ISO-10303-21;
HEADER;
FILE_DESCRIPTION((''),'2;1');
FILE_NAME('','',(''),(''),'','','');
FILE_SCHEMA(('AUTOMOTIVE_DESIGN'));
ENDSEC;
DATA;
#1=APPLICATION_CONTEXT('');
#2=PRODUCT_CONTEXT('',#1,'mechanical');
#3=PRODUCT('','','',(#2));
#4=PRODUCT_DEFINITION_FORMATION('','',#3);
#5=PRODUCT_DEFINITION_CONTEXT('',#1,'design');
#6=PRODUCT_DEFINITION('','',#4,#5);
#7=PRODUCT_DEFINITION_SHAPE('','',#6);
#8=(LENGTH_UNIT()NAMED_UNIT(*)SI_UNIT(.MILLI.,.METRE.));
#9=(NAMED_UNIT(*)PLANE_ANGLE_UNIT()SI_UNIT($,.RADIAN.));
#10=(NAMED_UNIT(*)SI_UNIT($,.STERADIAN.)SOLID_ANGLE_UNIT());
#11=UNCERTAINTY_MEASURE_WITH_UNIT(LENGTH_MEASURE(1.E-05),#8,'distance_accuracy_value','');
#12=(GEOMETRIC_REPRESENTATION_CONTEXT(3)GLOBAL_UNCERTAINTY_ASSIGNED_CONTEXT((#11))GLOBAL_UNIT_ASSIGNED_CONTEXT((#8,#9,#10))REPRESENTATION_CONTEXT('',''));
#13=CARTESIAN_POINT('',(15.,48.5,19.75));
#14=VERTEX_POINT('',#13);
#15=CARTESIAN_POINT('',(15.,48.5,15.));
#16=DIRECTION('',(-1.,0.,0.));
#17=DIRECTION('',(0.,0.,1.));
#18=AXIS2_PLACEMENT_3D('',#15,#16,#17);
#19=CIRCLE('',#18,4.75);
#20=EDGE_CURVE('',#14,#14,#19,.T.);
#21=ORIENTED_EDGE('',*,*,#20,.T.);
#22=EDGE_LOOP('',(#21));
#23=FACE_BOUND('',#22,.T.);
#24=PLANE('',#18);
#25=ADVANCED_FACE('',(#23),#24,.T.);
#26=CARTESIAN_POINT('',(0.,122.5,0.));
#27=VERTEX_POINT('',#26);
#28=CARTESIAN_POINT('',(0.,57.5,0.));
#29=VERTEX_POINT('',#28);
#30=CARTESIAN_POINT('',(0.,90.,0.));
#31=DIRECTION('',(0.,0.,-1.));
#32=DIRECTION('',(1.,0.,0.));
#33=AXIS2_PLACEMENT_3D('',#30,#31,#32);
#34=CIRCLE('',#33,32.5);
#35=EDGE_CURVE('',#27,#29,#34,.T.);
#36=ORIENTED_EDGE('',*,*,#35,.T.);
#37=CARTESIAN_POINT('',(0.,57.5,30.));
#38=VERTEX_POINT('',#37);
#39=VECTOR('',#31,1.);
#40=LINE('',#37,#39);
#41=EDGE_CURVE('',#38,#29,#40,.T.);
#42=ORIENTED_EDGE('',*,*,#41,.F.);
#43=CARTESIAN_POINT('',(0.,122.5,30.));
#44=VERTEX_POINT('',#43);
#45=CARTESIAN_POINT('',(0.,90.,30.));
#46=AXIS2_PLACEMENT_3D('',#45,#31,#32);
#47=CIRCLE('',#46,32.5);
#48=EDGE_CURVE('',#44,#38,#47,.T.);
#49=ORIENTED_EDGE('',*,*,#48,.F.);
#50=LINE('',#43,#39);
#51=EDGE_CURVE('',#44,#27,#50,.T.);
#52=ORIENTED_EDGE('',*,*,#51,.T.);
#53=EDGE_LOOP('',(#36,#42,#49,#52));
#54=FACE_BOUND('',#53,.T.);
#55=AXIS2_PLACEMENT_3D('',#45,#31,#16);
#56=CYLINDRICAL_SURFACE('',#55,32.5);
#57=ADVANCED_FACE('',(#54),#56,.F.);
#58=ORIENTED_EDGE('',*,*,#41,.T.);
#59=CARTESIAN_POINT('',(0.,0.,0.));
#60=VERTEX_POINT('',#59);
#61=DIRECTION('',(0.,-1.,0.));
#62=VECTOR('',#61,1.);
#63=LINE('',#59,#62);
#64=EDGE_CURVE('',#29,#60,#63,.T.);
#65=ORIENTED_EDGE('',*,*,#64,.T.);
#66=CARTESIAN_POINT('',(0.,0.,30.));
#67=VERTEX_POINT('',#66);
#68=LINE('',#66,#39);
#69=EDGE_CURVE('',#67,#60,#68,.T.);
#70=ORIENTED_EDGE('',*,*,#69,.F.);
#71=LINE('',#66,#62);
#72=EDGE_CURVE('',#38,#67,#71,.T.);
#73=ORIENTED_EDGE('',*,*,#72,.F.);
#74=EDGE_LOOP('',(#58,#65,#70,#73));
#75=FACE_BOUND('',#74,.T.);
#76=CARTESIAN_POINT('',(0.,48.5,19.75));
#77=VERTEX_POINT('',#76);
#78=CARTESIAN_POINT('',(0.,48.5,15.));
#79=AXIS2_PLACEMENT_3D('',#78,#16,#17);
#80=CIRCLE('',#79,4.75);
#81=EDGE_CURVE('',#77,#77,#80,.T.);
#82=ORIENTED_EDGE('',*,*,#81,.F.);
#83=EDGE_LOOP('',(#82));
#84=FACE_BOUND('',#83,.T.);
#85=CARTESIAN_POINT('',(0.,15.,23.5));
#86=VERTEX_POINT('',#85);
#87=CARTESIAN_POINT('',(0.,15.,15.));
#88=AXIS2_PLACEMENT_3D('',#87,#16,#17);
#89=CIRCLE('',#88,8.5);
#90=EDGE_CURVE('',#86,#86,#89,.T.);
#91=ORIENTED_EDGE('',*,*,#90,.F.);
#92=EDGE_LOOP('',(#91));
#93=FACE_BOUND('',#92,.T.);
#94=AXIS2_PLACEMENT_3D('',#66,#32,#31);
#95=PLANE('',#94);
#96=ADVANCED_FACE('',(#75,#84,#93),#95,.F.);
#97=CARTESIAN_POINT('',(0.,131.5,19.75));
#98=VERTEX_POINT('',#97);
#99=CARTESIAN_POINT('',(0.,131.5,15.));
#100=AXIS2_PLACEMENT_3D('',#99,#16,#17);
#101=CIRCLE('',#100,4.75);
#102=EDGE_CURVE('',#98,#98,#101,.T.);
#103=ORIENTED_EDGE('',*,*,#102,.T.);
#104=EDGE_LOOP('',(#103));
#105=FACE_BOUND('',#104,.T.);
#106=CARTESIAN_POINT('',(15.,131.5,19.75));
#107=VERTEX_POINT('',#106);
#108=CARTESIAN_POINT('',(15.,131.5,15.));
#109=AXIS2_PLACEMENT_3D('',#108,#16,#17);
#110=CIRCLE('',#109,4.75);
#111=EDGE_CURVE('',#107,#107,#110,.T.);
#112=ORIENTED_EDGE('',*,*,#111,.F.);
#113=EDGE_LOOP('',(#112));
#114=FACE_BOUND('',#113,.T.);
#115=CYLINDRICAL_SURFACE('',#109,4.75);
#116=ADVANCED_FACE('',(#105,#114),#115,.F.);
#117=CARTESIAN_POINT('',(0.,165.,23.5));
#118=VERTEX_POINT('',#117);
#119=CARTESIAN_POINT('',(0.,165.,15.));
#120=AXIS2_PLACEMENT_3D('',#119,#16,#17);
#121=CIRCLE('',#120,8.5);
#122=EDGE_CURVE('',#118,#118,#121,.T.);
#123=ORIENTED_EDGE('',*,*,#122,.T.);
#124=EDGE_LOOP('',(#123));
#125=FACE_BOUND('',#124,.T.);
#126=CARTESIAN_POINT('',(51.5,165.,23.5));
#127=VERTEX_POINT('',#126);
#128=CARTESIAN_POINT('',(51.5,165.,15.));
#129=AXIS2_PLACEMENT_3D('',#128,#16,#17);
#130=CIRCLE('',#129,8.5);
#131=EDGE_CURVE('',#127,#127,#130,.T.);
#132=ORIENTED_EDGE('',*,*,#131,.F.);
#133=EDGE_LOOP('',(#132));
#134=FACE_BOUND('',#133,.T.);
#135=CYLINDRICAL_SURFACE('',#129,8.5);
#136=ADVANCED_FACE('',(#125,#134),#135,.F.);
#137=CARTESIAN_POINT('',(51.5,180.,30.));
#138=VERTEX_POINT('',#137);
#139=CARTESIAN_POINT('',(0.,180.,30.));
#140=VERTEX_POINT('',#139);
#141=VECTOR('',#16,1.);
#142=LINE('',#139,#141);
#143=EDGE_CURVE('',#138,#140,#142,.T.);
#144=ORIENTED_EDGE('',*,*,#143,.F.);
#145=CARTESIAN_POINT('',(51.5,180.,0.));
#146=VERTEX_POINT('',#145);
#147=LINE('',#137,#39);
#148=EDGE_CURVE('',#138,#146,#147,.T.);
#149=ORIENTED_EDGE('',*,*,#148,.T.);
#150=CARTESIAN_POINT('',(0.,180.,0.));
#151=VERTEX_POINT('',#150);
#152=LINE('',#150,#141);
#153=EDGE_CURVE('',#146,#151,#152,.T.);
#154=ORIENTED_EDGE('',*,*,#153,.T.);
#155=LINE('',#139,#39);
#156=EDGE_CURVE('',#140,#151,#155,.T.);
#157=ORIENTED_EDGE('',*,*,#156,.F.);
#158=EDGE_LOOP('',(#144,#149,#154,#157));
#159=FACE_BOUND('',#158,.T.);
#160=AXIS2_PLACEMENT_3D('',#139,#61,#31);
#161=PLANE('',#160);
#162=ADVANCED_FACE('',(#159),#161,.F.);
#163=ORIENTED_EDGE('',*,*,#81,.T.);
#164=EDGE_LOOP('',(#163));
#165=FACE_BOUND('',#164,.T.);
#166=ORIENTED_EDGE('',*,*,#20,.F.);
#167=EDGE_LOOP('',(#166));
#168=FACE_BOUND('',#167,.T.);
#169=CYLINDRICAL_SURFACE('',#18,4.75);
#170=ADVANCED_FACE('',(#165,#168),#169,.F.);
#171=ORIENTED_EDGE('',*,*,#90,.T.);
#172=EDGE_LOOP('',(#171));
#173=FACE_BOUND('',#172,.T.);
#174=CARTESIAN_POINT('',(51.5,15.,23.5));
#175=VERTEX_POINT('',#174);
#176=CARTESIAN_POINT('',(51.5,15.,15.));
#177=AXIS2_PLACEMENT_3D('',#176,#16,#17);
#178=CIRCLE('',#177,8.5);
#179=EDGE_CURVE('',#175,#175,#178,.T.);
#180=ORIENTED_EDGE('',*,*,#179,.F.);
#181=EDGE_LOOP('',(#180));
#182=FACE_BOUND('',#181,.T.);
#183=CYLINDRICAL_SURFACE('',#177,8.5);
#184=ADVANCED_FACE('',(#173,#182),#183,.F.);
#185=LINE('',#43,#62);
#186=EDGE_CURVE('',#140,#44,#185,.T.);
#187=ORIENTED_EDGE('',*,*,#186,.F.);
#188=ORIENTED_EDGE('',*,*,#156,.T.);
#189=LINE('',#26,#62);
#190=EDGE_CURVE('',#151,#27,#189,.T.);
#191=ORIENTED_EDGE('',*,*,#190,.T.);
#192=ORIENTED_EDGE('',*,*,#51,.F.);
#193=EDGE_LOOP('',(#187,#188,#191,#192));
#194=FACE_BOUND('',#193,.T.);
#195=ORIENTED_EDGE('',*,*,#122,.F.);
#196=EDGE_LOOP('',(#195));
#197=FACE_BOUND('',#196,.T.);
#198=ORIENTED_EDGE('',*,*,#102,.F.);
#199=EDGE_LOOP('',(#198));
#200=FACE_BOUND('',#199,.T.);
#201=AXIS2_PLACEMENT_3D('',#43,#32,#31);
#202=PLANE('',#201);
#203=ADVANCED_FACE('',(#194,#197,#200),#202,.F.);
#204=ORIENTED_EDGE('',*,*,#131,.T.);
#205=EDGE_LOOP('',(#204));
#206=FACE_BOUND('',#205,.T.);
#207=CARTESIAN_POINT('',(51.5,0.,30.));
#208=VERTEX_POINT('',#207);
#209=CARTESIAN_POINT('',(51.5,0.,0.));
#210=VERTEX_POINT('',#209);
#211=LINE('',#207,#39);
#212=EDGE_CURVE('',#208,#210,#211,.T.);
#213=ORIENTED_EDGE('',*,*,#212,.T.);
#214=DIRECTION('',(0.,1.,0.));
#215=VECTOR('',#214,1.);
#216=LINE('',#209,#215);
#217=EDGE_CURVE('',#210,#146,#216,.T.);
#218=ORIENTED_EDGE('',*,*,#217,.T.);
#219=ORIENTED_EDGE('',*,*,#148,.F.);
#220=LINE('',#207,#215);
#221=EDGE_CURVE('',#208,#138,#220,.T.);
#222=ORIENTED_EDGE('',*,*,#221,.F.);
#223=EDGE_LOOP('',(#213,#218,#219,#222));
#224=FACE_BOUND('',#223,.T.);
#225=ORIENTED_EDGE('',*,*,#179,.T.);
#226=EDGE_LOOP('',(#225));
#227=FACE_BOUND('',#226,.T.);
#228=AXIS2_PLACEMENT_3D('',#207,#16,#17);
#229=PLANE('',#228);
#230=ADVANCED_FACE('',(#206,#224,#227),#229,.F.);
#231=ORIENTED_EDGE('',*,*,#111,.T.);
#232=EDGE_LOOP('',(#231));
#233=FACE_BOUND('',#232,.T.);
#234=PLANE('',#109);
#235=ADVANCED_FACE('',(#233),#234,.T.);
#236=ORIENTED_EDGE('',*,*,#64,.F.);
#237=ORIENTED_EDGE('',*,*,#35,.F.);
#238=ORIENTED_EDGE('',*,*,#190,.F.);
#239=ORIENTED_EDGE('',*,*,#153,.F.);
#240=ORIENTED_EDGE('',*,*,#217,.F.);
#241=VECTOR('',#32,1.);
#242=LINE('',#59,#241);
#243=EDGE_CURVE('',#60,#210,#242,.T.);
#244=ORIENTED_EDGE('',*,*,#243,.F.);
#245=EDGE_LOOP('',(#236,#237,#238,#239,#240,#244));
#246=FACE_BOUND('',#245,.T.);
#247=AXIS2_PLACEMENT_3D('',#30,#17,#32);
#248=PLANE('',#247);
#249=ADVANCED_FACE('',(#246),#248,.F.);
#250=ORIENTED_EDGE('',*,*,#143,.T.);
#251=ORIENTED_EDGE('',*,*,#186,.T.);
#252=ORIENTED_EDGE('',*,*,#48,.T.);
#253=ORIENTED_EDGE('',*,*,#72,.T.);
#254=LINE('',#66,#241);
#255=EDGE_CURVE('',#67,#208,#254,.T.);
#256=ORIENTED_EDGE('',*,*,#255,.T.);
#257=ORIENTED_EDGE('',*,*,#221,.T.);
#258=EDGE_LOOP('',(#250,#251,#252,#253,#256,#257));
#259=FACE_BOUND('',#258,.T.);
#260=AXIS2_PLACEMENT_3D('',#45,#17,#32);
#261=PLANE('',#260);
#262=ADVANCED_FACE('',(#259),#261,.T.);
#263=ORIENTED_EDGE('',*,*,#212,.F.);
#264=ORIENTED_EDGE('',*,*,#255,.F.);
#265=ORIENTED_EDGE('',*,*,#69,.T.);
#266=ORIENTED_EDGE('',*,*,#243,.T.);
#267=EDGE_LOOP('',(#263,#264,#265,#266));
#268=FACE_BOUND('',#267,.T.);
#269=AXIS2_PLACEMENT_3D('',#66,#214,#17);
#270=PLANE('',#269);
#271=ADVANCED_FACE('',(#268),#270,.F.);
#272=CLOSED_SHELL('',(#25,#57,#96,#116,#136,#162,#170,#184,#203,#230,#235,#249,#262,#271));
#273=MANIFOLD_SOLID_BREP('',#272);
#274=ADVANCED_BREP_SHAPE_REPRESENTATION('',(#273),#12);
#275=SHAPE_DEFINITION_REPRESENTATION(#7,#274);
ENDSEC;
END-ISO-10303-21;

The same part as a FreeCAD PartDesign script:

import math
import FreeCAD as App
import Part
import Sketcher
from FreeCAD import Vector

doc = App.newDocument("Part")
body = doc.addObject("PartDesign::Body", "Body")

sketch1 = body.newObject("Sketcher::SketchObject", "Sketch")
sketch1.AttachmentSupport = (doc.getObject("XY_Plane"), [""])
sketch1.MapMode = "FlatFace"
sketch1.addGeometry([
    Part.LineSegment(Vector(0, 180, 0), Vector(0, 122, 0)),
    Part.ArcOfCircle(Part.Circle(Vector(0, 90, 0), Vector(0, 0, 1), 32), math.radians(-90), math.radians(90)),
    Part.LineSegment(Vector(0, 58, 0), Vector(0, 0, 0)),
    Part.LineSegment(Vector(0, 0, 0), Vector(52, 0, 0)),
    Part.LineSegment(Vector(52, 0, 0), Vector(52, 180, 0)),
    Part.LineSegment(Vector(52, 180, 0), Vector(0, 180, 0)),
], False)
sketch1.addConstraint([
    Sketcher.Constraint("Coincident", 0, 2, 1, 2),
    Sketcher.Constraint("Coincident", 1, 1, 2, 1),
    Sketcher.Constraint("Coincident", 2, 2, 3, 1),
    Sketcher.Constraint("Coincident", 3, 2, 4, 1),
    Sketcher.Constraint("Coincident", 4, 2, 5, 1),
    Sketcher.Constraint("Coincident", 5, 2, 0, 1),
    Sketcher.Constraint("Vertical", 0),
    Sketcher.Constraint("Vertical", 2),
    Sketcher.Constraint("Horizontal", 3),
    Sketcher.Constraint("Vertical", 4),
    Sketcher.Constraint("Horizontal", 5),
    Sketcher.Constraint("Coincident", 2, 2, -1, 1),
    Sketcher.Constraint("PointOnObject", 1, 3, -2),
    Sketcher.Constraint("PointOnObject", 0, 2, -2),
    Sketcher.Constraint("Equal", 0, 2),
    Sketcher.Constraint("Radius", 1, 32.5),
    Sketcher.Constraint("DistanceY", 4, 1, 4, 2, 180.0),
    Sketcher.Constraint("DistanceX", 3, 1, 3, 2, 51.5),
])
pad1 = body.newObject("PartDesign::Pad", "Pad")
pad1.Profile = sketch1
pad1.Length = 30

sketch2 = body.newObject("Sketcher::SketchObject", "Sketch001")
sketch2.AttachmentSupport = (doc.getObject("YZ_Plane"), [""])
sketch2.MapMode = "FlatFace"
sketch2.addGeometry(Part.Circle(Vector(15, 15, 0), Vector(0, 0, 1), 8), False)
sketch2.addConstraint([
    Sketcher.Constraint("Diameter", 0, 17.0),
    Sketcher.Constraint("DistanceX", -1, 1, 0, 3, 15.0),
    Sketcher.Constraint("DistanceY", -1, 1, 0, 3, 15.0),
])
pocket1 = body.newObject("PartDesign::Pocket", "Pocket")
pocket1.Profile = sketch2
pocket1.Type = "ThroughAll"
pocket1.Reversed = True
doc.recompute()

linearpattern = body.newObject("PartDesign::LinearPattern", "LinearPattern")
linearpattern.Originals = [pocket1]
linearpattern.Direction = (doc.getObject("Y_Axis"), [""])
linearpattern.Mode = "offset"
linearpattern.Offset = 150
linearpattern.Occurrences = 2
body.Tip = linearpattern

sketch3 = body.newObject("Sketcher::SketchObject", "Sketch002")
sketch3.AttachmentSupport = (doc.getObject("YZ_Plane"), [""])
sketch3.MapMode = "FlatFace"
sketch3.addGeometry(Part.Circle(Vector(48.5, 15, 0), Vector(0, 0, 1), 4.8), False)
sketch3.addConstraint([
    Sketcher.Constraint("Diameter", 0, 9.5),
    Sketcher.Constraint("DistanceY", -1, 1, 0, 3, 15.0),
    Sketcher.Constraint("DistanceX", -1, 1, 0, 3, 48.5),
])
pocket2 = body.newObject("PartDesign::Pocket", "Pocket001")
pocket2.Profile = sketch3
pocket2.Length = 15
pocket2.Reversed = True
doc.recompute()

linearpattern2 = body.newObject("PartDesign::LinearPattern", "LinearPattern001")
linearpattern2.Originals = [pocket2]
linearpattern2.Direction = (doc.getObject("Y_Axis"), [""])
linearpattern2.Mode = "offset"
linearpattern2.Offset = 83
linearpattern2.Occurrences = 2
body.Tip = linearpattern2

doc.recompute()
